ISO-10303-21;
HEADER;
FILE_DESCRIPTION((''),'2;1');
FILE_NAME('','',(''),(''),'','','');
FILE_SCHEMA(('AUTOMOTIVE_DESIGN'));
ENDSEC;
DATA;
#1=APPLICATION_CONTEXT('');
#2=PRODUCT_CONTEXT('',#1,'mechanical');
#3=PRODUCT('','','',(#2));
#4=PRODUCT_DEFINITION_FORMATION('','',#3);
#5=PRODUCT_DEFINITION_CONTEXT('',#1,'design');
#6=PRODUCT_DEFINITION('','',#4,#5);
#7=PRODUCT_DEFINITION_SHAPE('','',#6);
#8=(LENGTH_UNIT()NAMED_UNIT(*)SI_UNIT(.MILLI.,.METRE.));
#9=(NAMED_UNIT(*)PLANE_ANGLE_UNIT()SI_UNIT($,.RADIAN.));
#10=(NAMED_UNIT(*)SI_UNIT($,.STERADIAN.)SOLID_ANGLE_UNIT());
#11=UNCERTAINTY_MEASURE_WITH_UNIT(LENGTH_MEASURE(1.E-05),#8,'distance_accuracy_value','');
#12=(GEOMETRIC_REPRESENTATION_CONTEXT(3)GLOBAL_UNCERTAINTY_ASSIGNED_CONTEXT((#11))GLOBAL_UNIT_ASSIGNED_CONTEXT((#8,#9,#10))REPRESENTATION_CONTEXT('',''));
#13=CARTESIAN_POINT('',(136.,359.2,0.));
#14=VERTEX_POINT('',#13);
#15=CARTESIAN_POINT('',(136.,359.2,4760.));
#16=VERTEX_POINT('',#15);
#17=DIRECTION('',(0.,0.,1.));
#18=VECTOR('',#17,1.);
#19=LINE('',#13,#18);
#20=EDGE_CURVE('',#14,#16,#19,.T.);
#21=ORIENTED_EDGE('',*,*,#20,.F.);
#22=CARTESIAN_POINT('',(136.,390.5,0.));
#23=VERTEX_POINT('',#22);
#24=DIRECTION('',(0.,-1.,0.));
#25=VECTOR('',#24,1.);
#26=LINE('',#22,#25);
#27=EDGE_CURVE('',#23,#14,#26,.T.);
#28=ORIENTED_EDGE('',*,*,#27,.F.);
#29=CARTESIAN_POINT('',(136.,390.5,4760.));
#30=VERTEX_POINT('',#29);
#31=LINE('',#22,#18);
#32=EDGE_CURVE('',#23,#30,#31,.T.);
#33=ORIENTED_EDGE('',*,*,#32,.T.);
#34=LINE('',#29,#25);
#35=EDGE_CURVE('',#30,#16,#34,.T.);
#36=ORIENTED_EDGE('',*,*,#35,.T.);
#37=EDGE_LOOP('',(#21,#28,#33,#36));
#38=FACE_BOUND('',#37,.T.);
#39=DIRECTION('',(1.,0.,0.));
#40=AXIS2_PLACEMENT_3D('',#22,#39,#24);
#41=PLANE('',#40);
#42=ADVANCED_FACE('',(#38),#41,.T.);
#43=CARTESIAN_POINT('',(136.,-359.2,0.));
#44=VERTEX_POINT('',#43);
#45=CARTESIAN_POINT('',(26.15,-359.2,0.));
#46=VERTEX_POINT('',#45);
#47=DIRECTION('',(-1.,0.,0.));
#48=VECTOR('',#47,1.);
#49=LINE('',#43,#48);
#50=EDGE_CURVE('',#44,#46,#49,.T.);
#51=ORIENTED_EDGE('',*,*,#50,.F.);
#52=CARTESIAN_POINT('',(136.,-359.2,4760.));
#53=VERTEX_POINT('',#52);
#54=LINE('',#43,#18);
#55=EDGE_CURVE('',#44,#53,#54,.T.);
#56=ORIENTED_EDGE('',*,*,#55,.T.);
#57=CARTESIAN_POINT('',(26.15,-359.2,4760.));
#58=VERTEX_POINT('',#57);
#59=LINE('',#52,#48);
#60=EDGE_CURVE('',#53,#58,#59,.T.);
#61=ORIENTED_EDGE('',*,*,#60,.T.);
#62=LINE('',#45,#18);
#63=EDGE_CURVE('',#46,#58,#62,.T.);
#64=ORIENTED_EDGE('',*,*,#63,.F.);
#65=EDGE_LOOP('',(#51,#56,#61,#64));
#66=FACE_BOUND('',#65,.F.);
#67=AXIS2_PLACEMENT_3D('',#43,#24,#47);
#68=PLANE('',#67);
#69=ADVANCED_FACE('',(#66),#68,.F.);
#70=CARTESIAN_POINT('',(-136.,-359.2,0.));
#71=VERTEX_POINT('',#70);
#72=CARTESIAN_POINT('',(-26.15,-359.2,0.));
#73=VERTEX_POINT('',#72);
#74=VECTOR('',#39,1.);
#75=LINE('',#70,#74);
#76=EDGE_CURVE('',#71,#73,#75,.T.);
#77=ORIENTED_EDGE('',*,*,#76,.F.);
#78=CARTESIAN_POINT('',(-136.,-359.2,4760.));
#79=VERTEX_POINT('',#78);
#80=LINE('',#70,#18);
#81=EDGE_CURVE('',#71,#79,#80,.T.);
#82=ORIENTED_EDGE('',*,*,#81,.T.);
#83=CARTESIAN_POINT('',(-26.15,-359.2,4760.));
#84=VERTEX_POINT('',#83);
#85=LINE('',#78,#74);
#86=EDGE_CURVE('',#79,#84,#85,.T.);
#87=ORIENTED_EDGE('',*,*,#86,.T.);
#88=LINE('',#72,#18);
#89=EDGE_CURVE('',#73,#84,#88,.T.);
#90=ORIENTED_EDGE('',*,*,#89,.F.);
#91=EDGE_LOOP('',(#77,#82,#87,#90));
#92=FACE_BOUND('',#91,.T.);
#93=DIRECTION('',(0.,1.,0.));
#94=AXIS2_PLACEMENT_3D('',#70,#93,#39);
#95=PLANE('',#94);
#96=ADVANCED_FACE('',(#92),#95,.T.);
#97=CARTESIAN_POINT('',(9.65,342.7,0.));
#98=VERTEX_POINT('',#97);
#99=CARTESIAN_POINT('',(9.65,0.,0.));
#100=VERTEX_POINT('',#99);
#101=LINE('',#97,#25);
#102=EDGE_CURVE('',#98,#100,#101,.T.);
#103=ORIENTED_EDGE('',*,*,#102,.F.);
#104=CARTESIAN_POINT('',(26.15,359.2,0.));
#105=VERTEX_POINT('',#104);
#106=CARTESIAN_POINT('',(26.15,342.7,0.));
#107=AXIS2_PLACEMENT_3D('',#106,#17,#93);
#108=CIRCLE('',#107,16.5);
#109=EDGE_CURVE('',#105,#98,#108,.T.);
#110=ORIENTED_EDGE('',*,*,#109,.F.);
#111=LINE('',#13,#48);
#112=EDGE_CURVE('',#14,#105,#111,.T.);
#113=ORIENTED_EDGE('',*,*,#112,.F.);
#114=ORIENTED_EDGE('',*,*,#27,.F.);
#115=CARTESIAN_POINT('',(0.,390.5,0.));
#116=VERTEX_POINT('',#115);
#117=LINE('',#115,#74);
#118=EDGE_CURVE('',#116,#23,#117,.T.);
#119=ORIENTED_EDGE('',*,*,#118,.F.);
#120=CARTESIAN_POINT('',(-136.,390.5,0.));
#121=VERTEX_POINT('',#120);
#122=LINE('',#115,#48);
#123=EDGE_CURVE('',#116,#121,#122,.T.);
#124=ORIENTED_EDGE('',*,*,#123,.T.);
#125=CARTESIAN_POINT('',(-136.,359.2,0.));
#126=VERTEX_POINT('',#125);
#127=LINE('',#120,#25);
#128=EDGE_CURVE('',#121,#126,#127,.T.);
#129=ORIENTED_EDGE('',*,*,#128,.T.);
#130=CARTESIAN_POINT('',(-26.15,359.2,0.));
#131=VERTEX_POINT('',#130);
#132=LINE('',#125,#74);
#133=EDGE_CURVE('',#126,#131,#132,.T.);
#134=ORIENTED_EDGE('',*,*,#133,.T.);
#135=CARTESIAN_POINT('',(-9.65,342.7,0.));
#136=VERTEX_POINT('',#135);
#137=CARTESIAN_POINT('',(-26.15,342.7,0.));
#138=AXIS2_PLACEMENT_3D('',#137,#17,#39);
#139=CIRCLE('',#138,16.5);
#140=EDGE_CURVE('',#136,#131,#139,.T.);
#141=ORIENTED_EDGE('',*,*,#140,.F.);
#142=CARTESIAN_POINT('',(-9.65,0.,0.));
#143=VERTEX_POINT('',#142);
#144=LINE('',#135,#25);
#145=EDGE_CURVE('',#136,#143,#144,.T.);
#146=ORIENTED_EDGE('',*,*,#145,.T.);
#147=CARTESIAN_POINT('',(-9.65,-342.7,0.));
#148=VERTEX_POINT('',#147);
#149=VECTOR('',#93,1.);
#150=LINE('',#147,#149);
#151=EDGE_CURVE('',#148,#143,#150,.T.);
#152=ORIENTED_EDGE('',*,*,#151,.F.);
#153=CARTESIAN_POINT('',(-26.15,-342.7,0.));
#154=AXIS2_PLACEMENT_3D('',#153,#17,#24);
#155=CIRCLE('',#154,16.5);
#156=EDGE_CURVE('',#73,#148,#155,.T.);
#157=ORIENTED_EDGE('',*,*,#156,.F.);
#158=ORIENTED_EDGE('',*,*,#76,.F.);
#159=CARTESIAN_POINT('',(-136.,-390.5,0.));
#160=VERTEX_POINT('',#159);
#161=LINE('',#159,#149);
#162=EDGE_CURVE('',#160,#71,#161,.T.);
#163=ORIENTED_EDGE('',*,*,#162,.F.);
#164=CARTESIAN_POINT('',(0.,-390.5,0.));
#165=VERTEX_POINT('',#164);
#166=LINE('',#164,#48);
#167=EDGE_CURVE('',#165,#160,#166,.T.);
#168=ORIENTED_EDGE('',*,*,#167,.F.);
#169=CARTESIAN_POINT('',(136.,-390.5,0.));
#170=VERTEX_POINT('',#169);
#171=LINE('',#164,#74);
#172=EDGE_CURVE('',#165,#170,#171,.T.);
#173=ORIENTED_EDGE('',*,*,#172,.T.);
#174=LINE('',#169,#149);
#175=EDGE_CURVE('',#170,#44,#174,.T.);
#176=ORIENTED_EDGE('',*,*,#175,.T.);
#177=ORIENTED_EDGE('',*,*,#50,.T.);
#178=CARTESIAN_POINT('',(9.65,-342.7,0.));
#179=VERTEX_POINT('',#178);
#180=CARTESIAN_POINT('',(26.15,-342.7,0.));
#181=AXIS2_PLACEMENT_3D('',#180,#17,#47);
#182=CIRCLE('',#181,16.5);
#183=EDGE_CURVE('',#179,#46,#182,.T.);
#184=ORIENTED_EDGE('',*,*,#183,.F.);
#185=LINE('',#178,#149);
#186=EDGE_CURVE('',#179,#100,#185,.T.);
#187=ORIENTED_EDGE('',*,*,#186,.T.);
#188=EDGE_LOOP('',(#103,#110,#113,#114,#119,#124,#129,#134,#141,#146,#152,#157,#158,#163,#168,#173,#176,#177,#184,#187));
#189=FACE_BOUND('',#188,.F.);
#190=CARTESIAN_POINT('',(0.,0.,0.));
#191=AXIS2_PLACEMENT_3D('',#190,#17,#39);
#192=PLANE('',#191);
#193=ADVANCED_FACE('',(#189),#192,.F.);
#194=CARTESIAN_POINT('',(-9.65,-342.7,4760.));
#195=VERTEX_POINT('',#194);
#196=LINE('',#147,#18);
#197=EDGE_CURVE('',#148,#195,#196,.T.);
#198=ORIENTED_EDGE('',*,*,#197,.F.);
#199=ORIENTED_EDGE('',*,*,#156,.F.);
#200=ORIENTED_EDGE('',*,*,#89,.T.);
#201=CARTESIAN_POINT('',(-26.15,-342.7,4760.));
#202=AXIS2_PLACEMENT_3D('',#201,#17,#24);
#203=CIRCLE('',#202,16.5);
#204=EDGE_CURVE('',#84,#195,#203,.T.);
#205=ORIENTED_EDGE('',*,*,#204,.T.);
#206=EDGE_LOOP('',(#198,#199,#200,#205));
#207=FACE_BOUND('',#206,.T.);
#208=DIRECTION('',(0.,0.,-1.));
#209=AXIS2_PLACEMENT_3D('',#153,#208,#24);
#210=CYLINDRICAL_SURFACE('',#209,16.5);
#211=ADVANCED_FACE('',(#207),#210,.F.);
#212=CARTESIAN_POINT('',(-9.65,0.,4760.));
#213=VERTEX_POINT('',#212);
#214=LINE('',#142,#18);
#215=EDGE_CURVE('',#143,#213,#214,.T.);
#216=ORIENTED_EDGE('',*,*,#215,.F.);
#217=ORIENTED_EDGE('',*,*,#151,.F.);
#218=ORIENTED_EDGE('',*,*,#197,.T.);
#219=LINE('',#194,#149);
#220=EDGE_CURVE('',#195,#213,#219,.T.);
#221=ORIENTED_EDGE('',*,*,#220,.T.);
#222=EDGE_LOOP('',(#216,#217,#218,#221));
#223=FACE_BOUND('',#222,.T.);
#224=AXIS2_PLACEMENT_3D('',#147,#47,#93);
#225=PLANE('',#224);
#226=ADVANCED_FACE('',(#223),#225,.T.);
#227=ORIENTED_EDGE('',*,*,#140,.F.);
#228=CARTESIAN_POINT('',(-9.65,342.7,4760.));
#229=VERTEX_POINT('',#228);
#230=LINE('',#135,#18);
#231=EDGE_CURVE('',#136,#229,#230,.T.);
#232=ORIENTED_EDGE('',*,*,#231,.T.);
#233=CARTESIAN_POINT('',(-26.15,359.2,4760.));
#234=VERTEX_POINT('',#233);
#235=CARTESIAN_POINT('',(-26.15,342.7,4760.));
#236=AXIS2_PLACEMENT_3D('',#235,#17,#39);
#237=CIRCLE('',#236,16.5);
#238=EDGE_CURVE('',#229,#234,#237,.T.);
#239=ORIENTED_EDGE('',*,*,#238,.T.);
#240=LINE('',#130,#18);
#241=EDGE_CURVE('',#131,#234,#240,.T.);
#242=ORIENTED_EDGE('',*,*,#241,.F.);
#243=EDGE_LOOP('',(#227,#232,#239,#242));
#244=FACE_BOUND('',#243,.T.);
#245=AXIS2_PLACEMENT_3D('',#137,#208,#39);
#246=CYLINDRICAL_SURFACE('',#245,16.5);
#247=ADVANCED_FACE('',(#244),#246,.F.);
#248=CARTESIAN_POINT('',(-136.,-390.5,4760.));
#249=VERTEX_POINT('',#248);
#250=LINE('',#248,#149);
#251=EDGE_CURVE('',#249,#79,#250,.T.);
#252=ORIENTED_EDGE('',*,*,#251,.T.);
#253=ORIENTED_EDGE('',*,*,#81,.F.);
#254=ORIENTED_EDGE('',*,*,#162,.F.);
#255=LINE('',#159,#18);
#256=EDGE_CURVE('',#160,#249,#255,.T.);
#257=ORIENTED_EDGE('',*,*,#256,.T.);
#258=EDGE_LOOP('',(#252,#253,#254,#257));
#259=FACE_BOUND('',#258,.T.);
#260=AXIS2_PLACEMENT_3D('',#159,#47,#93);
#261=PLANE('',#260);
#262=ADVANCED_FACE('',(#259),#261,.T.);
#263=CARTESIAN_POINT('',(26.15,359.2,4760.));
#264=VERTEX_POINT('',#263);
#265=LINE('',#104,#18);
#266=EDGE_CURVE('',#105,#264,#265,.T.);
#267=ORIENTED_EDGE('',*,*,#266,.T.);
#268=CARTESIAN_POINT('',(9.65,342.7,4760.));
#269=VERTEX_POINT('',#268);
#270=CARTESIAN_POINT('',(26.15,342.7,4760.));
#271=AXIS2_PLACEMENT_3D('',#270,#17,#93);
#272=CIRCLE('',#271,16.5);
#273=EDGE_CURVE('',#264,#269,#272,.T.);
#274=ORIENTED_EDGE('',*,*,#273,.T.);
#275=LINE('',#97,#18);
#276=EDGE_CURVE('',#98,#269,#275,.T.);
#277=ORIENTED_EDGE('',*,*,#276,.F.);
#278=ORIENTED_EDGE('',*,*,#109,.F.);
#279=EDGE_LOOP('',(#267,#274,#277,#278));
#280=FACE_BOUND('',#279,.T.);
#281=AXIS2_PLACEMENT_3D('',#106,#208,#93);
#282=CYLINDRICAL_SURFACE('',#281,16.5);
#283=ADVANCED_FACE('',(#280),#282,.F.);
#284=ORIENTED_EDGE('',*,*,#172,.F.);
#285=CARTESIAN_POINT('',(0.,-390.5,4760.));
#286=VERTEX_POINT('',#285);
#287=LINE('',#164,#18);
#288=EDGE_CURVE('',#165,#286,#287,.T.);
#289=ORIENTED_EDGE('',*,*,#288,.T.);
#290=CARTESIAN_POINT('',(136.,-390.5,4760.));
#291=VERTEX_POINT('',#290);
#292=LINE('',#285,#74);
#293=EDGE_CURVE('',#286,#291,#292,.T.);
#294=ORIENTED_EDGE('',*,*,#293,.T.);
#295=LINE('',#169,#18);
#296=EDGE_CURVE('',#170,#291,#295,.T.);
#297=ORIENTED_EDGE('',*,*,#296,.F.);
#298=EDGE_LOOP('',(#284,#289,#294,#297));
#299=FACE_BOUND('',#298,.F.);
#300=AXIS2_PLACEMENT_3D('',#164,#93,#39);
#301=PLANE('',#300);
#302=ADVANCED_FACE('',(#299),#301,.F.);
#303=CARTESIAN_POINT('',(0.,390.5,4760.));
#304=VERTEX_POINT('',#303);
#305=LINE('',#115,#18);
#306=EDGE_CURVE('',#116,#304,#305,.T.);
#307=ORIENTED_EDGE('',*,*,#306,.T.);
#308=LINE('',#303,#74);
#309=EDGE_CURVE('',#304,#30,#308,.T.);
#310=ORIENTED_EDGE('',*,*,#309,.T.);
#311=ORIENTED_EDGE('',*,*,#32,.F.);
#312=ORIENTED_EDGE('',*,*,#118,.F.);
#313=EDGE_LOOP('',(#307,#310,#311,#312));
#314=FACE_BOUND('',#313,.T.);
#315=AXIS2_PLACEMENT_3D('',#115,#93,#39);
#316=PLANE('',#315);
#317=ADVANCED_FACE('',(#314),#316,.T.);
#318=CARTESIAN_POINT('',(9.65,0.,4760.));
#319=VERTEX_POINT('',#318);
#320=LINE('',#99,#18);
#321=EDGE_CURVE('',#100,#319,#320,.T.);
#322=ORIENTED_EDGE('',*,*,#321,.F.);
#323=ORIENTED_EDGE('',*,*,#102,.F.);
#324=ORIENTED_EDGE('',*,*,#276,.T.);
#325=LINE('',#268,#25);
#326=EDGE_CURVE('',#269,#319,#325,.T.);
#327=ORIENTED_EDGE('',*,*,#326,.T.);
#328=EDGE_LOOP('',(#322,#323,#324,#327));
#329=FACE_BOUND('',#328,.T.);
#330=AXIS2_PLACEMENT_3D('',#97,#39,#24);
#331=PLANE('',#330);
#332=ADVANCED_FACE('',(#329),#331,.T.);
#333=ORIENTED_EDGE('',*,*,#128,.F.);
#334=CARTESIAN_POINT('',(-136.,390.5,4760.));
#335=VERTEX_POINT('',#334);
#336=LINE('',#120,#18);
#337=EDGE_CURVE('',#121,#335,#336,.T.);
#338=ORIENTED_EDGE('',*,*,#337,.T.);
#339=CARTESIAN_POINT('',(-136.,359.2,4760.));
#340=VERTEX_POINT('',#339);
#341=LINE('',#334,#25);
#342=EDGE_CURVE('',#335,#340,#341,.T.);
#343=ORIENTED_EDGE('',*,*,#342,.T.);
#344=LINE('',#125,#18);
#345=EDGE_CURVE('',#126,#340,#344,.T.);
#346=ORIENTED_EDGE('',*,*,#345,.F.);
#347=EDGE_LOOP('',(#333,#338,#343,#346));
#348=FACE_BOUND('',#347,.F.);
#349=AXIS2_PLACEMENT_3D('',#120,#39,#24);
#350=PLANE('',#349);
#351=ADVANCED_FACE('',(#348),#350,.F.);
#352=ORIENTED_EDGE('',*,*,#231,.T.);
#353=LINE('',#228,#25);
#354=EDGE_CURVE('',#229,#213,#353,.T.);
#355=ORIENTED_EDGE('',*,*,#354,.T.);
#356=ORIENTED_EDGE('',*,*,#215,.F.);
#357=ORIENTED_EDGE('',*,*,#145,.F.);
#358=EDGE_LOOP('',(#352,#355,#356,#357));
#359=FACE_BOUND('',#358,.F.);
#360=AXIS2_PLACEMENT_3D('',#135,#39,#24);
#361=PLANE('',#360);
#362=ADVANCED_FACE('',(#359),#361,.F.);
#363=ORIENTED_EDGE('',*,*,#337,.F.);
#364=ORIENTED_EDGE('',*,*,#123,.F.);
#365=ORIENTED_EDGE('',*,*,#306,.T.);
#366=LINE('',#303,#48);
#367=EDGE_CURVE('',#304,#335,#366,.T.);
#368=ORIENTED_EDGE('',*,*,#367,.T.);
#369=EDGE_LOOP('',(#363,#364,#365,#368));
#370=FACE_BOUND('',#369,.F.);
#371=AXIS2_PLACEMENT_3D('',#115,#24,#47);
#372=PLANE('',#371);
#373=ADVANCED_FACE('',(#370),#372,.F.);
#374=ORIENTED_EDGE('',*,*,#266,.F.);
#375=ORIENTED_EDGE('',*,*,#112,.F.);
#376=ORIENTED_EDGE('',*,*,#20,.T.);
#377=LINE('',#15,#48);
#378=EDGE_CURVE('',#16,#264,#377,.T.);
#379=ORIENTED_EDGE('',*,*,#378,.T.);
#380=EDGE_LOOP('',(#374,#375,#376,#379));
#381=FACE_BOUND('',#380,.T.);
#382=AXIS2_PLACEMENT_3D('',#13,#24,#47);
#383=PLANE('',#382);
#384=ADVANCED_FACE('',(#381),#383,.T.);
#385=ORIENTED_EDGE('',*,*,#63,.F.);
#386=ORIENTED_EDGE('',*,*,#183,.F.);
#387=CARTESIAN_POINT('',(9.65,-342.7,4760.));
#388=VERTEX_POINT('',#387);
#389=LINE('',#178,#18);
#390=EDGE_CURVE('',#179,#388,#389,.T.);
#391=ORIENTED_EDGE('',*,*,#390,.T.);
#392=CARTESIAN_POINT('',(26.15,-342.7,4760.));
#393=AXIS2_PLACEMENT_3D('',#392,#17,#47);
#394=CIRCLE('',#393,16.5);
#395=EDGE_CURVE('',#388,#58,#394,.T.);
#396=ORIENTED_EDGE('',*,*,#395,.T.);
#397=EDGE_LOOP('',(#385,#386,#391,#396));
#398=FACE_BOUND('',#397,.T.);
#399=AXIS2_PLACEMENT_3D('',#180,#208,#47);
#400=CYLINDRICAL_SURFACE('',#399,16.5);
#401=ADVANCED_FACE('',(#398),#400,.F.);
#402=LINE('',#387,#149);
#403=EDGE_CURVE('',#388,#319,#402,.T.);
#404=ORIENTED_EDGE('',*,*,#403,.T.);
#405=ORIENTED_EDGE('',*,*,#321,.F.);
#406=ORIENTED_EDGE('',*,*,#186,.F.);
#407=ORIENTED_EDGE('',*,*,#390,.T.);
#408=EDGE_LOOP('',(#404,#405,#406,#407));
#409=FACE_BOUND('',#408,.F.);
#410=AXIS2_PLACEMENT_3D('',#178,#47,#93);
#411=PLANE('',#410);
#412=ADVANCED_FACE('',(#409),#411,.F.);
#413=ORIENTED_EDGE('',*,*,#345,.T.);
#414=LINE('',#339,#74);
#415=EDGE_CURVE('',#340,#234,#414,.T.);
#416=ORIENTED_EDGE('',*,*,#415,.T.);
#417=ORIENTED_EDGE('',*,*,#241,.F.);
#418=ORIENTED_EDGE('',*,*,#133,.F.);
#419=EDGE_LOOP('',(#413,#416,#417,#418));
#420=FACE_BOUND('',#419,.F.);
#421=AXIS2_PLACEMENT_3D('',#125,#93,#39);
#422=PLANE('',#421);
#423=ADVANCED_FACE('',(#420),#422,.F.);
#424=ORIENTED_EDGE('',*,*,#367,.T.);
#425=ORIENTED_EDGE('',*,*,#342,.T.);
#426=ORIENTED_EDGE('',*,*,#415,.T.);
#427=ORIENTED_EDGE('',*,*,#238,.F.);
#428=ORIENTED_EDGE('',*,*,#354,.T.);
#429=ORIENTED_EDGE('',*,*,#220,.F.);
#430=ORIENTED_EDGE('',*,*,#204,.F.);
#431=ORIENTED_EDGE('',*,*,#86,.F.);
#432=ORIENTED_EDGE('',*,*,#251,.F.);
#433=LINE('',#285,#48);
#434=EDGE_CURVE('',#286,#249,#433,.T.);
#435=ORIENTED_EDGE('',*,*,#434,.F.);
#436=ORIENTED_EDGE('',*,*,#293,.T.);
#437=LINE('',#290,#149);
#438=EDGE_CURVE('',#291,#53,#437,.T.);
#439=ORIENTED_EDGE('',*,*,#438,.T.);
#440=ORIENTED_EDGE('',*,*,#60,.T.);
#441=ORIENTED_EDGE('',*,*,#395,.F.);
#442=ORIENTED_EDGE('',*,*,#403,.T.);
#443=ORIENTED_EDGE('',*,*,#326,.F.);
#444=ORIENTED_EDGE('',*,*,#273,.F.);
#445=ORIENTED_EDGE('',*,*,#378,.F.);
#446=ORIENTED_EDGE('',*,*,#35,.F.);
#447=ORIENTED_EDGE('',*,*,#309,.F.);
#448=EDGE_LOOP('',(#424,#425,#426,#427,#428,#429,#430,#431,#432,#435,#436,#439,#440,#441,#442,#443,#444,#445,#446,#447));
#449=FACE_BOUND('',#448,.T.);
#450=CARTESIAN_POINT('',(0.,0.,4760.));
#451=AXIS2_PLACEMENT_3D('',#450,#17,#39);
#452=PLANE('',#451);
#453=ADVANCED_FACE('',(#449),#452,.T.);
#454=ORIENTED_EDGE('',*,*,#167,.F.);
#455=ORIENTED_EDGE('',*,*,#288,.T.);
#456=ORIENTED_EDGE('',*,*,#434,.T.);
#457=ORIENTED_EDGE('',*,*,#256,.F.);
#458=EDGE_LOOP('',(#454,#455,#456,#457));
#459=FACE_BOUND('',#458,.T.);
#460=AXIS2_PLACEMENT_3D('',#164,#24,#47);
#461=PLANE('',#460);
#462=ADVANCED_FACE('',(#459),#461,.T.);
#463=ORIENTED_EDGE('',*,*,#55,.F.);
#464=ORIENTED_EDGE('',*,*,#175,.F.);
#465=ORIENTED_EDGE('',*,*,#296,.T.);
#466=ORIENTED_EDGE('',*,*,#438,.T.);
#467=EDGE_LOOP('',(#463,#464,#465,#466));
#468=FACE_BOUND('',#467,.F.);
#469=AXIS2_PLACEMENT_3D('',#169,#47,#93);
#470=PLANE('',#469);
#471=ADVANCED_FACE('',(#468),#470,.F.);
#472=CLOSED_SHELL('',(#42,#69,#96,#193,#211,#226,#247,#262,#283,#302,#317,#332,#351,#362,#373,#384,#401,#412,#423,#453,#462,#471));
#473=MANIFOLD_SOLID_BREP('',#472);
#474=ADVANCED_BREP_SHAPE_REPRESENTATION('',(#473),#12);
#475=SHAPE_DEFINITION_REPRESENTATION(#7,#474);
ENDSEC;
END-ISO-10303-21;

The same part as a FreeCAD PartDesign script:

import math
import FreeCAD as App
import Part
import Sketcher
from FreeCAD import Vector
Q = App.Units.Quantity

doc = App.newDocument("Part")
body = doc.addObject("PartDesign::Body", "Body")

sketch1 = body.newObject("Sketcher::SketchObject", "Sketch")
sketch1.AttachmentSupport = (doc.getObject("XY_Plane"), [""])
sketch1.MapMode = "FlatFace"
sketch1.addGeometry([
    Part.LineSegment(Vector(-136, -359, 0), Vector(-136, -390, 0)),
    Part.LineSegment(Vector(-136, -390, 0), Vector(136, -390, 0)),
    Part.LineSegment(Vector(136, -390, 0), Vector(136, -359, 0)),
    Part.LineSegment(Vector(136, -359, 0), Vector(26, -359, 0)),
    Part.ArcOfCircle(Part.Circle(Vector(26, -343, 0), Vector(0, 0, 1), 16), math.radians(180), math.radians(270)),
    Part.LineSegment(Vector(10, -343, 0), Vector(10, 343, 0)),
    Part.ArcOfCircle(Part.Circle(Vector(26, 343, 0), Vector(0, 0, 1), 16), math.radians(90), math.radians(180)),
    Part.LineSegment(Vector(26, 359, 0), Vector(136, 359, 0)),
    Part.LineSegment(Vector(136, 359, 0), Vector(136, 390, 0)),
    Part.LineSegment(Vector(136, 390, 0), Vector(-136, 390, 0)),
    Part.LineSegment(Vector(-136, 390, 0), Vector(-136, 359, 0)),
    Part.LineSegment(Vector(-136, 359, 0), Vector(-26, 359, 0)),
    Part.ArcOfCircle(Part.Circle(Vector(-26, 343, 0), Vector(0, 0, 1), 16), math.radians(0), math.radians(90)),
    Part.LineSegment(Vector(-10, 343, 0), Vector(-10, -343, 0)),
    Part.ArcOfCircle(Part.Circle(Vector(-26, -343, 0), Vector(0, 0, 1), 16), math.radians(-90), math.radians(0)),
    Part.LineSegment(Vector(-26, -359, 0), Vector(-136, -359, 0)),
], False)
sketch1.addConstraint([
    Sketcher.Constraint("Coincident", 0, 2, 1, 1),
    Sketcher.Constraint("Coincident", 1, 2, 2, 1),
    Sketcher.Constraint("Coincident", 2, 2, 3, 1),
    Sketcher.Constraint("Tangent", 3, 2, 4, 2),
    Sketcher.Constraint("Tangent", 4, 1, 5, 1),
    Sketcher.Constraint("Tangent", 5, 2, 6, 2),
    Sketcher.Constraint("Tangent", 6, 1, 7, 1),
    Sketcher.Constraint("Coincident", 7, 2, 8, 1),
    Sketcher.Constraint("Coincident", 8, 2, 9, 1),
    Sketcher.Constraint("Coincident", 9, 2, 10, 1),
    Sketcher.Constraint("Coincident", 10, 2, 11, 1),
    Sketcher.Constraint("Tangent", 11, 2, 12, 2),
    Sketcher.Constraint("Tangent", 12, 1, 13, 1),
    Sketcher.Constraint("Tangent", 13, 2, 14, 2),
    Sketcher.Constraint("Tangent", 14, 1, 15, 1),
    Sketcher.Constraint("Coincident", 15, 2, 0, 1),
    Sketcher.Constraint("Vertical", 0),
    Sketcher.Constraint("Horizontal", 1),
    Sketcher.Constraint("Vertical", 2),
    Sketcher.Constraint("Horizontal", 3),
    Sketcher.Constraint("Vertical", 5),
    Sketcher.Constraint("Horizontal", 7),
    Sketcher.Constraint("Vertical", 8),
    Sketcher.Constraint("Horizontal", 9),
    Sketcher.Constraint("Vertical", 10),
    Sketcher.Constraint("Horizontal", 11),
    Sketcher.Constraint("Vertical", 13),
    Sketcher.Constraint("Horizontal", 15),
    Sketcher.Constraint("Equal", 4, 6),
    Sketcher.Constraint("Equal", 6, 12),
    Sketcher.Constraint("Equal", 12, 14),
    Sketcher.Constraint("Symmetric", 4, 3, 12, 3, -1, 1),
    Sketcher.Constraint("Symmetric", 0, 2, 8, 2, -1, 1),
    Sketcher.Constraint("Symmetric", 7, 2, 10, 2, -2),
    Sketcher.Constraint("Symmetric", 2, 2, 15, 2, -2),
    Sketcher.Constraint("Radius", 4, Q("16.5 mm")),
    Sketcher.Constraint("DistanceY", 0, 2, 0, 1, Q("31.3 mm")),
    Sketcher.Constraint("DistanceX", 0, 2, -1, 1, Q("136 mm")),
    Sketcher.Constraint("DistanceY", 0, 2, -1, 1, Q("390.5 mm")),
    Sketcher.Constraint("DistanceX", -1, 1, 4, 1, Q("9.65 mm")),
])
pad1 = body.newObject("PartDesign::Pad", "Pad")
pad1.Profile = sketch1
pad1.Length = 4760

doc.recompute()
